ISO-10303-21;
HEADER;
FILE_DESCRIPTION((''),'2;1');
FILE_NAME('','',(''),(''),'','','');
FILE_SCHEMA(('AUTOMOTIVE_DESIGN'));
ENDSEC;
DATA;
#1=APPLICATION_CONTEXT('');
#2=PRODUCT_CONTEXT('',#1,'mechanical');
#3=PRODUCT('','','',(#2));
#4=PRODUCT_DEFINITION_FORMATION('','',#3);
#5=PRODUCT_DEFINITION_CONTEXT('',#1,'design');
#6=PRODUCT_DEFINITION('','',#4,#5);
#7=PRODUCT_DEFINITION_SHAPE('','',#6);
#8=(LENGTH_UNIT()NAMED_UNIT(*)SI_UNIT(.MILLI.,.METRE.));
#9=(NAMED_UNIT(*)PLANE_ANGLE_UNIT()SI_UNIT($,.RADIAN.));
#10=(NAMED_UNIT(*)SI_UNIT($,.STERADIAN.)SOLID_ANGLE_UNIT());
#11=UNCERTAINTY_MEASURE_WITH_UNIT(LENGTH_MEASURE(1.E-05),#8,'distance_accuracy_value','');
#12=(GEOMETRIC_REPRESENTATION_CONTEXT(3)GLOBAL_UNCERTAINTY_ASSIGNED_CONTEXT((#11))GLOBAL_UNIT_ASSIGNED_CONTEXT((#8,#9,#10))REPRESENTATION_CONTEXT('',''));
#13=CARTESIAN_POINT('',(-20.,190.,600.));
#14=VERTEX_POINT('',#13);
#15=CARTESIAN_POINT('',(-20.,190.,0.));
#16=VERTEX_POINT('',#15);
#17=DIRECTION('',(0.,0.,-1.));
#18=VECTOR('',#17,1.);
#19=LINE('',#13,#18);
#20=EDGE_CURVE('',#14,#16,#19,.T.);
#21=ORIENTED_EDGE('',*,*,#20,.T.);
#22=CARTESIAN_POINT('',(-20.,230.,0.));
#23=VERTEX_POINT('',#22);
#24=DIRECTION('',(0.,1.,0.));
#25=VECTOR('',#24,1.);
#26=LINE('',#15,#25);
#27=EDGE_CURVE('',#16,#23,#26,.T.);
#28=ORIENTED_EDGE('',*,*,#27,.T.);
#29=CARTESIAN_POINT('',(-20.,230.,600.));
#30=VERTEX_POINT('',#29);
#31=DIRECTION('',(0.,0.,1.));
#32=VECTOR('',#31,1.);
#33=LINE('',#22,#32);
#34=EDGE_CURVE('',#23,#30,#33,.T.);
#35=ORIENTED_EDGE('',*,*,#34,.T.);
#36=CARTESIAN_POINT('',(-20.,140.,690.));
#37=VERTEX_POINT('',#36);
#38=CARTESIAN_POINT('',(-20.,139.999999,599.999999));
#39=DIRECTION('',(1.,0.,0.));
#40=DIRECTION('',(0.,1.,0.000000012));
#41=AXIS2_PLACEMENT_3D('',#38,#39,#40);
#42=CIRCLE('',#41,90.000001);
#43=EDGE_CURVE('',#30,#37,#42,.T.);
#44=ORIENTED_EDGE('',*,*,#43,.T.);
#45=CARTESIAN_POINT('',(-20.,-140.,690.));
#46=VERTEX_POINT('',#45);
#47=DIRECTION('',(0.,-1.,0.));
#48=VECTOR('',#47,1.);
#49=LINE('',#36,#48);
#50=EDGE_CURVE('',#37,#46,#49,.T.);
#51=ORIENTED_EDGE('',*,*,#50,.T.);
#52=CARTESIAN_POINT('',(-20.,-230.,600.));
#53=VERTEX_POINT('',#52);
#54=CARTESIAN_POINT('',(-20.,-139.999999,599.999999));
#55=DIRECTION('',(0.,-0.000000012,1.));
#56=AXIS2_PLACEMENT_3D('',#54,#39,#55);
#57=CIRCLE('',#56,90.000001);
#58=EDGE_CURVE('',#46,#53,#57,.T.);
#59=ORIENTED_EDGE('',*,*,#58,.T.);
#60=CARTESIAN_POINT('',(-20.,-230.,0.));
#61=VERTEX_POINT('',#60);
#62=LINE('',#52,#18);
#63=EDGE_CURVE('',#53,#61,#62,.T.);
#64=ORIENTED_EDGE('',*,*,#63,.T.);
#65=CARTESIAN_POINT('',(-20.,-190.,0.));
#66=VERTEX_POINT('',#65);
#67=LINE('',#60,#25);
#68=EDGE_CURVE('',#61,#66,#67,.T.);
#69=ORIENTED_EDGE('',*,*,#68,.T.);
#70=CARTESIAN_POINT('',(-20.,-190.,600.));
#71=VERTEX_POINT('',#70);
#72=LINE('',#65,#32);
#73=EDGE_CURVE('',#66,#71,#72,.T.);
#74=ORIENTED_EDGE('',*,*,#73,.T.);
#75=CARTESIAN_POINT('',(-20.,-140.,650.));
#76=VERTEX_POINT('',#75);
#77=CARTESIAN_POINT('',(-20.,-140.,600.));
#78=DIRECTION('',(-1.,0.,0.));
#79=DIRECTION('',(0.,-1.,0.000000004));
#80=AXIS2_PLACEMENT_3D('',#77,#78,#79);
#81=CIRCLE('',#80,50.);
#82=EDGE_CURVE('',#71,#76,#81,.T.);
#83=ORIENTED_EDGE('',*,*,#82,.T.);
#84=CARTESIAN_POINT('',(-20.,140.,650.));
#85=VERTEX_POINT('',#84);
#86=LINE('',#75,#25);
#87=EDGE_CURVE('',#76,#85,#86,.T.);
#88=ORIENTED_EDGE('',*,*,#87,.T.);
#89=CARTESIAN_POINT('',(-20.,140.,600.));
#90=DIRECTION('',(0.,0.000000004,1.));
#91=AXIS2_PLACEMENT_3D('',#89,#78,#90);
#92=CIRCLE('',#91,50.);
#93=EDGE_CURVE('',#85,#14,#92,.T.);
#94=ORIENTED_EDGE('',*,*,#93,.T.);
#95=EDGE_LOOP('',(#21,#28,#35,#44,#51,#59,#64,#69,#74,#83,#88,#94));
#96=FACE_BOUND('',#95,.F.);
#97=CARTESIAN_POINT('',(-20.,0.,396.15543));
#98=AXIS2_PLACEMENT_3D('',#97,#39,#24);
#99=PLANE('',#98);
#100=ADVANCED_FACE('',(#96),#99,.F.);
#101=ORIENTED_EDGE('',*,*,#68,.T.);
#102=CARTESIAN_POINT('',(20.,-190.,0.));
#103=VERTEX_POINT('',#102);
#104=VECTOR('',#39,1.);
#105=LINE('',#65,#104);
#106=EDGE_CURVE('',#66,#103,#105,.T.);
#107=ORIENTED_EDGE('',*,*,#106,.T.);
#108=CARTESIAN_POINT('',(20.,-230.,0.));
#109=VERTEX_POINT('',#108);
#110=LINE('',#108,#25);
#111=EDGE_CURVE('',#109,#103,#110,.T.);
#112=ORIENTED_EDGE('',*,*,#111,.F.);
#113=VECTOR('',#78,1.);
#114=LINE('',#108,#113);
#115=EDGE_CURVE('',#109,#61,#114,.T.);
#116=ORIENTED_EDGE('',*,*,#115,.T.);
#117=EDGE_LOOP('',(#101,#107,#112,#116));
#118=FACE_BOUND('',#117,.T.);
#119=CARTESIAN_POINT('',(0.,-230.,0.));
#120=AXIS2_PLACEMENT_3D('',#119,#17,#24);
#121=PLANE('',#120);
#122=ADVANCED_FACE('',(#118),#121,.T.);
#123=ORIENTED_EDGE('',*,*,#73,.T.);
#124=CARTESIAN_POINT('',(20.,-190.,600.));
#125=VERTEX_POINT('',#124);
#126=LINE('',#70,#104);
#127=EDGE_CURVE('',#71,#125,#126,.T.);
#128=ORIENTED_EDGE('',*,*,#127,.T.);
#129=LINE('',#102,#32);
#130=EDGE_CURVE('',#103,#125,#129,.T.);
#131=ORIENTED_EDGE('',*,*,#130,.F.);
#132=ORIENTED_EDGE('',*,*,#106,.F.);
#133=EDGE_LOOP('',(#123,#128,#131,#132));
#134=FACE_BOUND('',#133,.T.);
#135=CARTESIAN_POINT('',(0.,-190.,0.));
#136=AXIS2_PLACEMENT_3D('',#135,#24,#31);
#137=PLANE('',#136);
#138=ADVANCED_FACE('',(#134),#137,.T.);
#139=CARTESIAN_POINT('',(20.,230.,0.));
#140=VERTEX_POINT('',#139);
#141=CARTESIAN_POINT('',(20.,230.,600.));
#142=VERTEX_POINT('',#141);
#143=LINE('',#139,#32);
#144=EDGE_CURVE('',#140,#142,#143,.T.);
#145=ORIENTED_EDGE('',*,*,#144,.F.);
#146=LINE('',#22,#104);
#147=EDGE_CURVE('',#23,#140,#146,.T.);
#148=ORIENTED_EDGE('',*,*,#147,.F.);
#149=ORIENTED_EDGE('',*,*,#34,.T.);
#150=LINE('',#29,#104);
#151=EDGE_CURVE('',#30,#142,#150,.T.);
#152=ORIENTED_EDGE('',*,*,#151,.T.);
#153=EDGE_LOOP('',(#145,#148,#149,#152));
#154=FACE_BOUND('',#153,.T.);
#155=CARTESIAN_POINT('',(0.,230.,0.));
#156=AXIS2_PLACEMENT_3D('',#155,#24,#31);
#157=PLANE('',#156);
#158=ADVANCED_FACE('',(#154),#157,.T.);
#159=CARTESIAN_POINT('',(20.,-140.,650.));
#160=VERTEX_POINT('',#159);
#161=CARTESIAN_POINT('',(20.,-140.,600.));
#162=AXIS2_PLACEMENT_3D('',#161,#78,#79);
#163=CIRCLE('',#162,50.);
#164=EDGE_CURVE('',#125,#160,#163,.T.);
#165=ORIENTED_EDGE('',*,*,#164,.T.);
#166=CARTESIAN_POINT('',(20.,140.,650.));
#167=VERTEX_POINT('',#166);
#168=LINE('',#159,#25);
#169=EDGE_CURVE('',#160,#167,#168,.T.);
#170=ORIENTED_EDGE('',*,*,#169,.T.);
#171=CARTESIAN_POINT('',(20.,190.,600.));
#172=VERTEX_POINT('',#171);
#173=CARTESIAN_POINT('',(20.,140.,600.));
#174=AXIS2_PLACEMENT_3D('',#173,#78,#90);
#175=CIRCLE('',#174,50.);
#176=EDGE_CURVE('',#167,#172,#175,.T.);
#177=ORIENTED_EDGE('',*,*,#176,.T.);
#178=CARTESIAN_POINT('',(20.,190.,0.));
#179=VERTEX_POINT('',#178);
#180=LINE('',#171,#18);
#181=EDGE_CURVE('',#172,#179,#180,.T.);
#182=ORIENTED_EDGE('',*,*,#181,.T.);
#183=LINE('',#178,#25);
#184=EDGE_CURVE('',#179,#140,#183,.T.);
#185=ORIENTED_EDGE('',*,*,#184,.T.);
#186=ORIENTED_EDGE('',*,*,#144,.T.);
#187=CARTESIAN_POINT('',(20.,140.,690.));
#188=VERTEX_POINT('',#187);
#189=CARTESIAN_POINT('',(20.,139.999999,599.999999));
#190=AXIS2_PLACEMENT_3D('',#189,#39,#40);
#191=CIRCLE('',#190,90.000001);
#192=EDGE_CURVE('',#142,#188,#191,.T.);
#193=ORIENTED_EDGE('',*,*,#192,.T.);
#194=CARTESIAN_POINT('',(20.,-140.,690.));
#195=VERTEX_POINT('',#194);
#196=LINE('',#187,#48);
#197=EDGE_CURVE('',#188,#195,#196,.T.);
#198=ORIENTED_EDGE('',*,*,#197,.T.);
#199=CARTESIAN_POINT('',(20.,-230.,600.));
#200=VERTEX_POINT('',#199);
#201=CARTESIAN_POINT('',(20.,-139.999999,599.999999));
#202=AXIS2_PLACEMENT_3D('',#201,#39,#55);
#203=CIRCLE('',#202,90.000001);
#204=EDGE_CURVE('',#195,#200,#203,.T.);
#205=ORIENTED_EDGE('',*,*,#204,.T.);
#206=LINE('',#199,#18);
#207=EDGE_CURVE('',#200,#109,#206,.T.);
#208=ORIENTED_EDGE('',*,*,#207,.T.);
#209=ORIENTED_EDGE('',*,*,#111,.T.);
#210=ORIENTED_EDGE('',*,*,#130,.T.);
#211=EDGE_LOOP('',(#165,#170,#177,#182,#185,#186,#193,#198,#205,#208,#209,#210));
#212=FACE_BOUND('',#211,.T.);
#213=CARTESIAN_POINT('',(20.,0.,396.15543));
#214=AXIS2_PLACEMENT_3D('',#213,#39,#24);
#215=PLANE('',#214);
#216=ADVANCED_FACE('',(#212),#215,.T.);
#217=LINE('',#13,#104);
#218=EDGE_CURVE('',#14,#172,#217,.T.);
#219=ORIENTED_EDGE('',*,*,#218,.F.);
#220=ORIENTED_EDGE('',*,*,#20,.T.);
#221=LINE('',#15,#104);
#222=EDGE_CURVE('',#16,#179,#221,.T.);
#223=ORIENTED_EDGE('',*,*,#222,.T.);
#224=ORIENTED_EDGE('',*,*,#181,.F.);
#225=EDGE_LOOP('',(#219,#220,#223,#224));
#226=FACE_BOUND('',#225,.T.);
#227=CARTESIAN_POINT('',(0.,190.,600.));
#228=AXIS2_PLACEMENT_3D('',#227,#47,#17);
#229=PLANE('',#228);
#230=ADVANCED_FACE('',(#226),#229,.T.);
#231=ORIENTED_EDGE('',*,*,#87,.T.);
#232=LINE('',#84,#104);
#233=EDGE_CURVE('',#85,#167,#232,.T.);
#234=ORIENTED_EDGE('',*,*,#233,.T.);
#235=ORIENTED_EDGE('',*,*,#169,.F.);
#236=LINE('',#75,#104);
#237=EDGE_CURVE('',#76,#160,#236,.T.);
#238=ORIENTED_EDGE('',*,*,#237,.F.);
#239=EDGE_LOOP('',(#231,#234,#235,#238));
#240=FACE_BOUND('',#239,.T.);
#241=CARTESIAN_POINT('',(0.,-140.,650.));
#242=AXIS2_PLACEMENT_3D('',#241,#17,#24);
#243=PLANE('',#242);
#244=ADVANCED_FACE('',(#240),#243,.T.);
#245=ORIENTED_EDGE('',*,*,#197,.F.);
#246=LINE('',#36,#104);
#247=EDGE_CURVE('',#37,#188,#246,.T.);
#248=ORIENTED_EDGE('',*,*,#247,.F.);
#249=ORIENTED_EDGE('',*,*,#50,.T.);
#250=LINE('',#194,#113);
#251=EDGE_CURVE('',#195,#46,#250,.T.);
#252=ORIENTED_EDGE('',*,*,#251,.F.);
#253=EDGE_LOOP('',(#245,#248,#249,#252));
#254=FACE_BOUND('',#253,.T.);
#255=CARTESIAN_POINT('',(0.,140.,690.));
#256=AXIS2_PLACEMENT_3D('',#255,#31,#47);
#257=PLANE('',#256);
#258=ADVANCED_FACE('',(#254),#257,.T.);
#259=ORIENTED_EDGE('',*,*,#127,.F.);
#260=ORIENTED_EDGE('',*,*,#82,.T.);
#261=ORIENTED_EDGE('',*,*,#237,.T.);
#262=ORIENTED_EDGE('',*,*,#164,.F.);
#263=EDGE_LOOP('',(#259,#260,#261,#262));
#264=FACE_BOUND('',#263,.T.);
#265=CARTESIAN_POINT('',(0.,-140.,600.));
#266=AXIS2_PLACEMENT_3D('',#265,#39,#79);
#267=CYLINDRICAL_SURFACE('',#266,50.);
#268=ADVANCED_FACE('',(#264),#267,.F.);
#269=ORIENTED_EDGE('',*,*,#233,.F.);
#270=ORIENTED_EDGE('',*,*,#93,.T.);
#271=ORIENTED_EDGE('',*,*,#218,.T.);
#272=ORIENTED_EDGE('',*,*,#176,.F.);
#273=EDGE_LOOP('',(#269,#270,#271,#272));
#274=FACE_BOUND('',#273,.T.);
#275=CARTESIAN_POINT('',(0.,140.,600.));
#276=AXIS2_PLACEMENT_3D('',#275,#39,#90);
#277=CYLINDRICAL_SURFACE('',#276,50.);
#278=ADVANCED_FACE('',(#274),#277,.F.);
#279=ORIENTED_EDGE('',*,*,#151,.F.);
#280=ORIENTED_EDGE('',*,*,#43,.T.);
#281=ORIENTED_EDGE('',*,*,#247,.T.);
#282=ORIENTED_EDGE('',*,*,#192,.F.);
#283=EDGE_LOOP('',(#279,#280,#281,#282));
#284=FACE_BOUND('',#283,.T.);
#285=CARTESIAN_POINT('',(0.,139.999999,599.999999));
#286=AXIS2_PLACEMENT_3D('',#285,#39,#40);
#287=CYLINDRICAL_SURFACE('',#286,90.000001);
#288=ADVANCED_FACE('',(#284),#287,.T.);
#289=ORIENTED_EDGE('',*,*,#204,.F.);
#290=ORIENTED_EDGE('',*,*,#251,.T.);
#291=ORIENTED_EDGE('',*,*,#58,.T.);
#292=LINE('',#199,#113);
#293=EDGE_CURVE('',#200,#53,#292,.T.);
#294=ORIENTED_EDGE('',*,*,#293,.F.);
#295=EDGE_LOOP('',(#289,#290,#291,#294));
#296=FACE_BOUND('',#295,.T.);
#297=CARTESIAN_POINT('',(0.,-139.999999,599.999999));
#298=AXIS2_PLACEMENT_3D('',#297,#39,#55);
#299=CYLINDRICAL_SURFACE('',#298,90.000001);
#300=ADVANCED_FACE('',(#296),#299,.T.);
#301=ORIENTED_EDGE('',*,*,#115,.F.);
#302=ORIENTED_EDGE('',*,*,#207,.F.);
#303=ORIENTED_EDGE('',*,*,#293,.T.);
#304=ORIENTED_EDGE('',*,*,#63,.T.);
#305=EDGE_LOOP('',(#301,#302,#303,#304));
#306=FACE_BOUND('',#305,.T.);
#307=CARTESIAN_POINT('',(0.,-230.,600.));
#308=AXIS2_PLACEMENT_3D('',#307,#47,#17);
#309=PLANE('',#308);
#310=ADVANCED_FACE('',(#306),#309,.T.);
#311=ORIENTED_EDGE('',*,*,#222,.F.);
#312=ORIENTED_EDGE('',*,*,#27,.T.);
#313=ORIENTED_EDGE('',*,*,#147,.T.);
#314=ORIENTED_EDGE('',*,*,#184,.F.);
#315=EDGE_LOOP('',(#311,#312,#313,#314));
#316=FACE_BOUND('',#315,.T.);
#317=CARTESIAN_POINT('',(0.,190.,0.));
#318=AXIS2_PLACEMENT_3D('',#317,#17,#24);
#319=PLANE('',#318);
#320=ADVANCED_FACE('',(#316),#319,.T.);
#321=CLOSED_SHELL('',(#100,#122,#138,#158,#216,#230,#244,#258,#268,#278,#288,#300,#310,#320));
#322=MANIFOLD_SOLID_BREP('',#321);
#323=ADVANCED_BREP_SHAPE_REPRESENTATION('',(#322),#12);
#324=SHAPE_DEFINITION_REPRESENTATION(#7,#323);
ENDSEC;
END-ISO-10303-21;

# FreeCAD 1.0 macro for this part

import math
import FreeCAD as App
import Part
import Sketcher

doc = App.newDocument("Part")
body = doc.addObject("PartDesign::Body", "Body")

# Sketch on YZ plane
sketch1 = body.newObject("Sketcher::SketchObject", "Sketch")
sketch1.AttachmentSupport = (doc.getObject("YZ_Plane"), [""])
sketch1.MapMode = "FlatFace"
sketch1.addGeometry([
    Part.LineSegment(App.Vector(-230, 0, 0), App.Vector(-190, 0, 0)),  # 0
    Part.LineSegment(App.Vector(-190, 0, 0), App.Vector(-190, 600, 0)),  # 1
    Part.ArcOfCircle(Part.Circle(App.Vector(-140, 600, 0), App.Vector(0, 0, 1), 50), math.radians(90), math.radians(180)),  # 2
    Part.LineSegment(App.Vector(-140, 650, 0), App.Vector(140, 650, 0)),  # 3
    Part.ArcOfCircle(Part.Circle(App.Vector(140, 600, 0), App.Vector(0, 0, 1), 50), math.radians(0), math.radians(90)),  # 4
    Part.LineSegment(App.Vector(190, 600, 0), App.Vector(190, 0, 0)),  # 5
    Part.LineSegment(App.Vector(190, 0, 0), App.Vector(230, 0, 0)),  # 6
    Part.LineSegment(App.Vector(230, 0, 0), App.Vector(230, 600, 0)),  # 7
    Part.ArcOfCircle(Part.Circle(App.Vector(140, 600, 0), App.Vector(0, 0, 1), 90), math.radians(0), math.radians(90)),  # 8
    Part.LineSegment(App.Vector(140, 690, 0), App.Vector(-140, 690, 0)),  # 9
    Part.ArcOfCircle(Part.Circle(App.Vector(-140, 600, 0), App.Vector(0, 0, 1), 90), math.radians(90), math.radians(180)),  # 10
    Part.LineSegment(App.Vector(-230, 600, 0), App.Vector(-230, 0, 0)),  # 11
], False)
sketch1.addConstraint([
    Sketcher.Constraint("Coincident", 0, 2, 1, 1),
    Sketcher.Constraint("Tangent", 1, 2, 2, 2),
    Sketcher.Constraint("Tangent", 2, 1, 3, 1),
    Sketcher.Constraint("Tangent", 3, 2, 4, 2),
    Sketcher.Constraint("Tangent", 4, 1, 5, 1),
    Sketcher.Constraint("Coincident", 5, 2, 6, 1),
    Sketcher.Constraint("Coincident", 6, 2, 7, 1),
    Sketcher.Constraint("Tangent", 7, 2, 8, 1),
    Sketcher.Constraint("Tangent", 8, 2, 9, 1),
    Sketcher.Constraint("Tangent", 9, 2, 10, 1),
    Sketcher.Constraint("Tangent", 10, 2, 11, 1),
    Sketcher.Constraint("Coincident", 11, 2, 0, 1),
    Sketcher.Constraint("Horizontal", 0),
    Sketcher.Constraint("Vertical", 1),
    Sketcher.Constraint("Horizontal", 3),
    Sketcher.Constraint("Vertical", 5),
    Sketcher.Constraint("Horizontal", 6),
    Sketcher.Constraint("Vertical", 7),
    Sketcher.Constraint("Horizontal", 9),
    Sketcher.Constraint("Vertical", 11),
    Sketcher.Constraint("Coincident", 8, 3, 4, 3),
    Sketcher.Constraint("Coincident", 10, 3, 2, 3),
    Sketcher.Constraint("Equal", 2, 4),
    Sketcher.Constraint("Symmetric", 0, 2, 5, 2, -1, 1),
    Sketcher.Constraint("PointOnObject", 0, 2, -1),
    Sketcher.Constraint("Radius", 2, 50.0),
    Sketcher.Constraint("Radius", 8, 90.000001),
    Sketcher.Constraint("DistanceX", 3, 1, 3, 2, 280.0),
    Sketcher.Constraint("DistanceY", 1, 1, 1, 2, 600.0),
])
pad1 = body.newObject("PartDesign::Pad", "Pad")
pad1.Profile = sketch1
pad1.Length = 40
pad1.Midplane = True

doc.recompute()
